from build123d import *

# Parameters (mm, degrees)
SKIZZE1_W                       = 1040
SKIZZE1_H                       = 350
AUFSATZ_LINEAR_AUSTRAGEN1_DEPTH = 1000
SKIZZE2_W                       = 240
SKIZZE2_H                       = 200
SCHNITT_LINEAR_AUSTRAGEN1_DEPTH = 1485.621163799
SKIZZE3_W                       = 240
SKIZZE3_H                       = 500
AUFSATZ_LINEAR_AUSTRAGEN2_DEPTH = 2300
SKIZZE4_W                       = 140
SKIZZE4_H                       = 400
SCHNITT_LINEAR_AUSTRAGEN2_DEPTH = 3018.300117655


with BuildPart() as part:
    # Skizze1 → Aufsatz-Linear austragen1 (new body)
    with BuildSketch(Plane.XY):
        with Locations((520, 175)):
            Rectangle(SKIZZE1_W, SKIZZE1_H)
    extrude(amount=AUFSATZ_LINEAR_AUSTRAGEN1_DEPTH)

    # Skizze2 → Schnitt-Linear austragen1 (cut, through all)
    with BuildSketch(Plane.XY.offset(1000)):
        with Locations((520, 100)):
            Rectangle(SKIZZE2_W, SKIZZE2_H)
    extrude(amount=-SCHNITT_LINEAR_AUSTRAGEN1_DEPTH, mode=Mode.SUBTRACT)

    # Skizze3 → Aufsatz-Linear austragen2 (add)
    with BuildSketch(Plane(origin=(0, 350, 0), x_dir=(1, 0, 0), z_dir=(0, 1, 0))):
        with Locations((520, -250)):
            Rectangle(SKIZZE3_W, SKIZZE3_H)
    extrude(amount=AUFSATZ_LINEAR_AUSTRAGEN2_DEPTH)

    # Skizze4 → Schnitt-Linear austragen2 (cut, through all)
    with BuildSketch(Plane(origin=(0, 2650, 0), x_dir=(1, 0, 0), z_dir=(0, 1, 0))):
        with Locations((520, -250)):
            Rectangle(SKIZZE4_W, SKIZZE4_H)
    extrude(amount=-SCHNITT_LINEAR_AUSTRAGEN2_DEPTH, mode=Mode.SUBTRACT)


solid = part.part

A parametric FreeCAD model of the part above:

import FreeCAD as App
import Part
import Sketcher

V = App.Vector
Q = App.Units.Quantity


def add_polygon(sketch, points):
    """Adds a closed chain of lines whose ends are joined by coincident constraints."""
    first, n = sketch.GeometryCount, len(points)
    for a, b in zip(points, points[1:] + points[:1]):
        sketch.addGeometry(Part.LineSegment(App.Vector(*a, 0), App.Vector(*b, 0)), False)
    for i in range(n):
        sketch.addConstraint(Sketcher.Constraint("Coincident", first + i, 2, first + (i + 1) % n, 1))

doc = App.newDocument("Part")
body = doc.addObject("PartDesign::Body", "Body")

# Sketch on XY plane
sketch1 = body.newObject("Sketcher::SketchObject", "Sketch")
sketch1.AttachmentSupport = (doc.getObject("XY_Plane"), [""])
sketch1.MapMode = "FlatFace"
add_polygon(sketch1, [(0, 350), (0, 0), (1040, 0), (1040, 350)])  # lines 0-3
sketch1.addConstraint([
    Sketcher.Constraint("Vertical", 0),
    Sketcher.Constraint("Horizontal", 1),
    Sketcher.Constraint("Vertical", 2),
    Sketcher.Constraint("Horizontal", 3),
    Sketcher.Constraint("Coincident", 0, 2, -1, 1),
    Sketcher.Constraint("DistanceX", 1, 1, 1, 2, Q("1040 mm")),
    Sketcher.Constraint("DistanceY", 0, 2, 0, 1, Q("350 mm")),
])
pad1 = body.newObject("PartDesign::Pad", "Pad")
pad1.Profile = sketch1
pad1.Length = 1000

# Sketch on XY plane
sketch2 = body.newObject("Sketcher::SketchObject", "Sketch001")
sketch2.AttachmentSupport = (doc.getObject("XY_Plane"), [""])
sketch2.MapMode = "FlatFace"
sketch2.AttachmentOffset = App.Placement(V(0, 0, 1000), App.Rotation())
add_polygon(sketch2, [(400, 200), (400, 0), (640, 0), (640, 200)])  # lines 0-3
sketch2.addConstraint([
    Sketcher.Constraint("Vertical", 0),
    Sketcher.Constraint("Horizontal", 1),
    Sketcher.Constraint("Vertical", 2),
    Sketcher.Constraint("Horizontal", 3),
    Sketcher.Constraint("PointOnObject", 0, 2, -1),
    Sketcher.Constraint("DistanceX", 1, 1, 1, 2, Q("240 mm")),
    Sketcher.Constraint("DistanceY", 0, 2, 0, 1, Q("200 mm")),
    Sketcher.Constraint("DistanceX", -1, 1, 0, 2, Q("400 mm")),
])
pocket1 = body.newObject("PartDesign::Pocket", "Pocket")
pocket1.Profile = sketch2
pocket1.Type = "ThroughAll"

# Sketch on XZ plane
sketch3 = body.newObject("Sketcher::SketchObject", "Sketch002")
sketch3.AttachmentSupport = (doc.getObject("XZ_Plane"), [""])
sketch3.MapMode = "FlatFace"
sketch3.AttachmentOffset = App.Placement(V(0, 0, -350), App.Rotation())
add_polygon(sketch3, [(400, 0), (400, 500), (640, 500), (640, 0)])  # lines 0-3
sketch3.addConstraint([
    Sketcher.Constraint("Vertical", 0),
    Sketcher.Constraint("Horizontal", 1),
    Sketcher.Constraint("Vertical", 2),
    Sketcher.Constraint("Horizontal", 3),
    Sketcher.Constraint("PointOnObject", 2, 2, -1),
    Sketcher.Constraint("DistanceX", 1, 1, 1, 2, Q("240 mm")),
    Sketcher.Constraint("DistanceY", 0, 1, 0, 2, Q("500 mm")),
    Sketcher.Constraint("DistanceX", -1, 1, 0, 2, Q("400 mm")),
])
pad2 = body.newObject("PartDesign::Pad", "Pad001")
pad2.Profile = sketch3
pad2.Length = 2300
pad2.Reversed = True

# Sketch on XZ plane
sketch4 = body.newObject("Sketcher::SketchObject", "Sketch003")
sketch4.AttachmentSupport = (doc.getObject("XZ_Plane"), [""])
sketch4.MapMode = "FlatFace"
sketch4.AttachmentOffset = App.Placement(V(0, 0, -2650), App.Rotation())
add_polygon(sketch4, [(450, 50), (450, 450), (590, 450), (590, 50)])  # lines 0-3
sketch4.addConstraint([
    Sketcher.Constraint("Vertical", 0),
    Sketcher.Constraint("Horizontal", 1),
    Sketcher.Constraint("Vertical", 2),
    Sketcher.Constraint("Horizontal", 3),
    Sketcher.Constraint("DistanceX", 1, 1, 1, 2, Q("140 mm")),
    Sketcher.Constraint("DistanceY", 0, 1, 0, 2, Q("400 mm")),
    Sketcher.Constraint("DistanceX", -1, 1, 0, 2, Q("450 mm")),
    Sketcher.Constraint("DistanceY", -1, 1, 0, 2, Q("450 mm")),
])
pocket2 = body.newObject("PartDesign::Pocket", "Pocket001")
pocket2.Profile = sketch4
pocket2.Type = "ThroughAll"
pocket2.Reversed = True

doc.recompute()
